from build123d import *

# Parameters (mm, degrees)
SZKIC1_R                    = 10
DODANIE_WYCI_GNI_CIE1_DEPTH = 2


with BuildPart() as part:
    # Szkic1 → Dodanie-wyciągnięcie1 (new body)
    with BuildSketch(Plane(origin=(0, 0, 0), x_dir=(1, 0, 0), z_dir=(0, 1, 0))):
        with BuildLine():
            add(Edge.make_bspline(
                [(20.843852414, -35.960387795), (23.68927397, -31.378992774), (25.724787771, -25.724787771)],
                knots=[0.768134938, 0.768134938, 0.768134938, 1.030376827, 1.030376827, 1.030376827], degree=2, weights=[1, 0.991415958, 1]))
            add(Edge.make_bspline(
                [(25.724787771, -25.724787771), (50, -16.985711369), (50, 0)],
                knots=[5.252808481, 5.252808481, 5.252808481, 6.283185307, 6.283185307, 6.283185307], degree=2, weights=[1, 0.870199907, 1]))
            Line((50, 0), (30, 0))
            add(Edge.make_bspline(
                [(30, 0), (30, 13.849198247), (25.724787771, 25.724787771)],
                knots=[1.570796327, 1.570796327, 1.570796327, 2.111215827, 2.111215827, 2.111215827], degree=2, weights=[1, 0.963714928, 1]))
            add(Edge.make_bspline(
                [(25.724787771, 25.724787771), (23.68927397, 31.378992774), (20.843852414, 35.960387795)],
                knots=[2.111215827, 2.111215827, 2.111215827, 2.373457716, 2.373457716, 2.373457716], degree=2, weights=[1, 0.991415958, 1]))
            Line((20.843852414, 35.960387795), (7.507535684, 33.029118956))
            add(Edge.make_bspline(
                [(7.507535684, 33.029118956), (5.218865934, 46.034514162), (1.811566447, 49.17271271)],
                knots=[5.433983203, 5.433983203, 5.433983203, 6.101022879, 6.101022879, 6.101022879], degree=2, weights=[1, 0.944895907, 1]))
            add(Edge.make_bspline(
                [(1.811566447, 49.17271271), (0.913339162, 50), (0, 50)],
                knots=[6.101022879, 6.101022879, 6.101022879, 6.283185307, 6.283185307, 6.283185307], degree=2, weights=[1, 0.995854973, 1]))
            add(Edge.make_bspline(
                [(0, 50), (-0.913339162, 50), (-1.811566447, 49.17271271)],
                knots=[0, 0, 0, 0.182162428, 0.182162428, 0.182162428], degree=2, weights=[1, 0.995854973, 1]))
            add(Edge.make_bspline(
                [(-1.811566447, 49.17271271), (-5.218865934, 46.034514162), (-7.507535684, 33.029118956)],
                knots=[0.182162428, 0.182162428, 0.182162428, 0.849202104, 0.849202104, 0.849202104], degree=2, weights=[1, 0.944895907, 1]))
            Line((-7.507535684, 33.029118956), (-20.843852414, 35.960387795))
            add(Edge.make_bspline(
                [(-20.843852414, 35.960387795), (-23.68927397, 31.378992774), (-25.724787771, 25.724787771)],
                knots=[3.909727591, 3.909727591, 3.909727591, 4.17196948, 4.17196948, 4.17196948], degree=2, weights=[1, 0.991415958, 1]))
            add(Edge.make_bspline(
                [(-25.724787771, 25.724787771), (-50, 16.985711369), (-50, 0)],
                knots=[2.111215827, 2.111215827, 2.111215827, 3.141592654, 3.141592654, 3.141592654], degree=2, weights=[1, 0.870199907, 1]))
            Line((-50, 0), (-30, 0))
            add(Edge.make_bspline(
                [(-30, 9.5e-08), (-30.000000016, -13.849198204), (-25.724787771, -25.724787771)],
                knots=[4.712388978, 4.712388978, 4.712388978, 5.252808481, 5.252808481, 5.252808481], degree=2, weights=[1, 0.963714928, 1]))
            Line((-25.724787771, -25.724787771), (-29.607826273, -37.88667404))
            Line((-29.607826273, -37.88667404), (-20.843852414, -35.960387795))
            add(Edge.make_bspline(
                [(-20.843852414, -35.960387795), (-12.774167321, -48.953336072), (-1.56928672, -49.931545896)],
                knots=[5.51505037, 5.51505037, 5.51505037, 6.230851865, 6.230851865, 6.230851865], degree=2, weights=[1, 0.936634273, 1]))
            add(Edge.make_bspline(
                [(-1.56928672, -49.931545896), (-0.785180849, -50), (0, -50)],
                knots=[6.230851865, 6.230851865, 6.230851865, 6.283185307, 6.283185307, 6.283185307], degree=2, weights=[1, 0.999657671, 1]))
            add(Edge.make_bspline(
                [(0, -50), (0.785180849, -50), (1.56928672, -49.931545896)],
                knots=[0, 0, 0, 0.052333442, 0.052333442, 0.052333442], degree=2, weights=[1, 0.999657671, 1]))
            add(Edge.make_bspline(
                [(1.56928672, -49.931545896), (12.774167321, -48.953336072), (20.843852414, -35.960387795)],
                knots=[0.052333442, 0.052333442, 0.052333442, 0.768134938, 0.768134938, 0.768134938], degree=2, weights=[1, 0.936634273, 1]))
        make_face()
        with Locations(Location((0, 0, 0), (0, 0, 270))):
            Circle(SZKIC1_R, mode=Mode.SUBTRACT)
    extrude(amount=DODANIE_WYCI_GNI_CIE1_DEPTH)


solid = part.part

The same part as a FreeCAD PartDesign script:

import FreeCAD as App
import Part
import Sketcher

V = App.Vector

doc = App.newDocument("Part")
params = doc.addObject("Spreadsheet::Sheet", "Params")
for row, (alias, value) in enumerate([
    ("sketch1_diameter", "20 mm"),
    ("pad1_length", "2 mm"),
], start=1):
    params.set(f"A{row}", alias)
    params.set(f"B{row}", "=" + value)
    params.setAlias(f"B{row}", alias)

body = doc.addObject("PartDesign::Body", "Body")

# Sketch on XZ plane
sketch1 = body.newObject("Sketcher::SketchObject", "Sketch")
sketch1.AttachmentSupport = (doc.getObject("XZ_Plane"), [""])
sketch1.MapMode = "FlatFace"
sketch1.addGeometry([
    Part.BSplineCurve([V(20.843852, 35.960388, 0), V(23.689274, 31.378993, 0), V(25.724788, 25.724788, 0)], [3, 3], [0.768134938, 1.030376827], False, 2, [1, 0.991415958, 1], False),  # 0
    Part.BSplineCurve([V(25.724788, 25.724788, 0), V(50, 16.985711, 0), V(50, 0, 0)], [3, 3], [5.252808481, 6.283185307], False, 2, [1, 0.870199907, 1], False),  # 1
    Part.LineSegment(V(50, 0, 0), V(30, 0, 0)),  # 2
    Part.BSplineCurve([V(30, 0, 0), V(30, -13.849198, 0), V(25.724788, -25.724788, 0)], [3, 3], [1.570796327, 2.111215827], False, 2, [1, 0.963714928, 1], False),  # 3
    Part.BSplineCurve([V(25.724788, -25.724788, 0), V(23.689274, -31.378993, 0), V(20.843852, -35.960388, 0)], [3, 3], [2.111215827, 2.373457716], False, 2, [1, 0.991415958, 1], False),  # 4
    Part.LineSegment(V(20.843852, -35.960388, 0), V(7.507536, -33.029119, 0)),  # 5
    Part.BSplineCurve([V(7.507536, -33.029119, 0), V(5.218866, -46.034514, 0), V(1.811566, -49.172713, 0)], [3, 3], [5.433983203, 6.101022879], False, 2, [1, 0.944895907, 1], False),  # 6
    Part.BSplineCurve([V(1.811566, -49.172713, 0), V(1.453765, -49.502256, 0), V(1.092219, -49.751126, 0), V(0.728402, -49.917271, 0), V(0.363821, -50, 0), V(-0.363821, -50, 0), V(-0.728402, -49.917271, 0), V(-1.092219, -49.751126, 0), V(-1.453765, -49.502256, 0), V(-1.811566, -49.172713, 0)], [6, 4, 6], [6.101022879, 6.283185307, 6.465347735], False, 5, [1, 1, 0.999993128, 0.999993128, 1, 1, 0.999993128, 0.999993128, 1, 1], False),  # 7
    Part.BSplineCurve([V(-1.811566, -49.172713, 0), V(-5.218866, -46.034514, 0), V(-7.507536, -33.029119, 0)], [3, 3], [0.182162428, 0.849202104], False, 2, [1, 0.944895907, 1], False),  # 8
    Part.LineSegment(V(-7.507536, -33.029119, 0), V(-20.843852, -35.960388, 0)),  # 9
    Part.BSplineCurve([V(-20.843852, -35.960388, 0), V(-23.689274, -31.378993, 0), V(-25.724788, -25.724788, 0)], [3, 3], [3.909727591, 4.17196948], False, 2, [1, 0.991415958, 1], False),  # 10
    Part.BSplineCurve([V(-25.724788, -25.724788, 0), V(-50, -16.985711, 0), V(-50, 0, 0)], [3, 3], [2.111215827, 3.141592654], False, 2, [1, 0.870199907, 1], False),  # 11
    Part.LineSegment(V(-50, 0, 0), V(-30, 0, 0)),  # 12
    Part.BSplineCurve([V(-30, 0, 0), V(-30, 13.849198, 0), V(-25.724788, 25.724788, 0)], [3, 3], [4.712388978, 5.252808481], False, 2, [1, 0.963714928, 1], False),  # 13
    Part.LineSegment(V(-25.724788, 25.724788, 0), V(-29.607826, 37.886674, 0)),  # 14
    Part.LineSegment(V(-29.607826, 37.886674, 0), V(-20.843852, 35.960388, 0)),  # 15
    Part.BSplineCurve([V(-20.843852, 35.960388, 0), V(-12.774167, 48.953336, 0), V(-1.569287, 49.931546, 0)], [3, 3], [5.51505037, 6.230851865], False, 2, [1, 0.936634273, 1], False),  # 16
    Part.BSplineCurve([V(-1.569287, 49.931546, 0), V(-1.255752, 49.958918, 0), V(-0.941948, 49.979459, 0), V(-0.627983, 49.993155, 0), V(-0.313965, 50, 0), V(0.313965, 50, 0), V(0.627983, 49.993155, 0), V(0.941948, 49.979459, 0), V(1.255752, 49.958918, 0), V(1.569287, 49.931546, 0)], [6, 4, 6], [6.230851865, 6.283185307, 6.335518749], False, 5, [1, 1, 0.999999953, 0.999999953, 1, 1, 0.999999953, 0.999999953, 1, 1], False),  # 17
    Part.BSplineCurve([V(1.569287, 49.931546, 0), V(12.774167, 48.953336, 0), V(20.843852, 35.960388, 0)], [3, 3], [0.052333442, 0.768134938], False, 2, [1, 0.936634273, 1], False),  # 18
    Part.Circle(V(0, 0, 0), V(0, 0, 1), 10),  # 19
], False)
sketch1.addConstraint([
    Sketcher.Constraint("Block", 0),
    Sketcher.Constraint("Block", 1),
    Sketcher.Constraint("Block", 3),
    Sketcher.Constraint("Block", 4),
    Sketcher.Constraint("Block", 6),
    Sketcher.Constraint("Block", 7),
    Sketcher.Constraint("Block", 8),
    Sketcher.Constraint("Block", 10),
    Sketcher.Constraint("Block", 11),
    Sketcher.Constraint("Block", 13),
    Sketcher.Constraint("Block", 16),
    Sketcher.Constraint("Block", 17),
    Sketcher.Constraint("Block", 18),
    Sketcher.Constraint("Coincident", 1, 2, 2, 1),
    Sketcher.Constraint("Coincident", 2, 2, 3, 1),
    Sketcher.Constraint("Coincident", 4, 2, 5, 1),
    Sketcher.Constraint("Coincident", 5, 2, 6, 1),
    Sketcher.Constraint("Coincident", 8, 2, 9, 1),
    Sketcher.Constraint("Coincident", 9, 2, 10, 1),
    Sketcher.Constraint("Coincident", 11, 2, 12, 1),
    Sketcher.Constraint("Coincident", 12, 2, 13, 1),
    Sketcher.Constraint("Coincident", 13, 2, 14, 1),
    Sketcher.Constraint("Coincident", 14, 2, 15, 1),
    Sketcher.Constraint("Coincident", 15, 2, 16, 1),
    Sketcher.Constraint("Coincident", 19, 3, -1, 1),
    Sketcher.Constraint("Diameter", 19, 20.0),
    Sketcher.Constraint("DistanceY", 9, 2, 14, 2, 73.847062),
    Sketcher.Constraint("DistanceX", 14, 2, 5, 2, 37.115362),
])
sketch1.setExpression("Constraints[25]", "Params.sketch1_diameter")
pad1 = body.newObject("PartDesign::Pad", "Pad")
pad1.Profile = sketch1
pad1.setExpression("Length", "Params.pad1_length")
pad1.Reversed = True

doc.recompute()
